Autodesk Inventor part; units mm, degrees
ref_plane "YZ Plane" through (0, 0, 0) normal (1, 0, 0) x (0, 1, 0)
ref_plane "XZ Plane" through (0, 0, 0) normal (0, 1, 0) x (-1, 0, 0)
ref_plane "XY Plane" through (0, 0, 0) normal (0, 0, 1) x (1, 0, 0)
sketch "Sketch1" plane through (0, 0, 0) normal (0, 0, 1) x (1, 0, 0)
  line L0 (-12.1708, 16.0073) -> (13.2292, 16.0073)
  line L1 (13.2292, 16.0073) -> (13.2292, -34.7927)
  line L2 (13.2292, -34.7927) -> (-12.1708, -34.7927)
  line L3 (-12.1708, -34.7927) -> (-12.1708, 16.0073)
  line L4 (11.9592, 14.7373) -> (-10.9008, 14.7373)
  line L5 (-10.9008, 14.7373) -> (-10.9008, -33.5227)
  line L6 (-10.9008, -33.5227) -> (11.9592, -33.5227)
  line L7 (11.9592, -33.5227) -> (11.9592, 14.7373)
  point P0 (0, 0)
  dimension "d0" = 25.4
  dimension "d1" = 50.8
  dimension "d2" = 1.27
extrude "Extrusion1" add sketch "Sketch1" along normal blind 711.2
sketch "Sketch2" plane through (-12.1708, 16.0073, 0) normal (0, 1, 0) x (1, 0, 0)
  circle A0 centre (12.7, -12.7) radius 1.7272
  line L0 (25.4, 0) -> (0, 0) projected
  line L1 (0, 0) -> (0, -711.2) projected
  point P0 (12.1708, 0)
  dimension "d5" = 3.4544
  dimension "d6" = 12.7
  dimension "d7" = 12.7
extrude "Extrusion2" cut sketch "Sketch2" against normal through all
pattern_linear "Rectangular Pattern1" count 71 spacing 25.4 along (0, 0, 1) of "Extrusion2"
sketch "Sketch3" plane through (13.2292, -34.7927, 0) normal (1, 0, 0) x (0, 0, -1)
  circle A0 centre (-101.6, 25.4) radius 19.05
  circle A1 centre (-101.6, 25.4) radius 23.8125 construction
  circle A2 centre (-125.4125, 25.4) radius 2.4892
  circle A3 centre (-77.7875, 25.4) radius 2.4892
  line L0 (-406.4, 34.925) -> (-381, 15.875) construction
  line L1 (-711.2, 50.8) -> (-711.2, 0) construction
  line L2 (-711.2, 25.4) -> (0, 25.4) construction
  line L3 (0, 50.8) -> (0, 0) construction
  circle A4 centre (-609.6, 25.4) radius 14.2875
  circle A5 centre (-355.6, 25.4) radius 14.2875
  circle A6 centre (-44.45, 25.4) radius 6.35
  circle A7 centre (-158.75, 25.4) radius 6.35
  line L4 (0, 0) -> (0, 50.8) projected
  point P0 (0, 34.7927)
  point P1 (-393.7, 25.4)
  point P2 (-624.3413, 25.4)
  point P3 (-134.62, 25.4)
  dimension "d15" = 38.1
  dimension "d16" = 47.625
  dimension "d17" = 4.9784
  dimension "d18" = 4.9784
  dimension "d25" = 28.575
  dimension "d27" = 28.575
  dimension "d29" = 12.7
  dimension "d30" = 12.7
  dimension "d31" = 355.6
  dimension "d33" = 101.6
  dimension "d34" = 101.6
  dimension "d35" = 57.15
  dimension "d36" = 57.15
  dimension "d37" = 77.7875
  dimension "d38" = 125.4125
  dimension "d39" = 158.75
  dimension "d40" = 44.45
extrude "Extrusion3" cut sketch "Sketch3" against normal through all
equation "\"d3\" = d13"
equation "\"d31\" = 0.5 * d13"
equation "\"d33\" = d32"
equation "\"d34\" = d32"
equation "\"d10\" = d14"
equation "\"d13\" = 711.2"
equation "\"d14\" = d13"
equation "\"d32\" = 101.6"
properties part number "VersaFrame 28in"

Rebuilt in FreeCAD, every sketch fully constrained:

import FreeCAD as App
import Part
import Sketcher

V = App.Vector
Q = App.Units.Quantity

doc = App.newDocument("Part")
body = doc.addObject("PartDesign::Body", "Body")

# Sketch on XY plane
sketch1 = body.newObject("Sketcher::SketchObject", "Sketch")
sketch1.AttachmentSupport = (doc.getObject("XY_Plane"), [""])
sketch1.MapMode = "FlatFace"
sketch1.addGeometry(Part.LineSegment(V(13.2292, 16.0073, 0), V(-12.1708, 16.0073, 0)), False)
sketch1.addGeometry(Part.LineSegment(V(-12.1708, 16.0073, 0), V(-12.1708, -34.7927, 0)), False)
sketch1.addGeometry(Part.LineSegment(V(-12.1708, -34.7927, 0), V(13.2292, -34.7927, 0)), False)
sketch1.addGeometry(Part.LineSegment(V(13.2292, -34.7927, 0), V(13.2292, 16.0073, 0)), False)
sketch1.addGeometry(Part.LineSegment(V(-10.9008, 14.7373, 0), V(11.9592, 14.7373, 0)), False)
sketch1.addGeometry(Part.LineSegment(V(11.9592, 14.7373, 0), V(11.9592, -33.5227, 0)), False)
sketch1.addGeometry(Part.LineSegment(V(11.9592, -33.5227, 0), V(-10.9008, -33.5227, 0)), False)
sketch1.addGeometry(Part.LineSegment(V(-10.9008, -33.5227, 0), V(-10.9008, 14.7373, 0)), False)
sketch1.addConstraint(Sketcher.Constraint("Coincident", 0, 2, 1, 1))
sketch1.addConstraint(Sketcher.Constraint("Coincident", 1, 2, 2, 1))
sketch1.addConstraint(Sketcher.Constraint("Coincident", 2, 2, 3, 1))
sketch1.addConstraint(Sketcher.Constraint("Coincident", 3, 2, 0, 1))
sketch1.addConstraint(Sketcher.Constraint("Coincident", 4, 2, 5, 1))
sketch1.addConstraint(Sketcher.Constraint("Coincident", 5, 2, 6, 1))
sketch1.addConstraint(Sketcher.Constraint("Coincident", 6, 2, 7, 1))
sketch1.addConstraint(Sketcher.Constraint("Coincident", 7, 2, 4, 1))
sketch1.addConstraint(Sketcher.Constraint("Horizontal", 0))
sketch1.addConstraint(Sketcher.Constraint("Vertical", 1))
sketch1.addConstraint(Sketcher.Constraint("Horizontal", 2))
sketch1.addConstraint(Sketcher.Constraint("Vertical", 3))
sketch1.addConstraint(Sketcher.Constraint("Horizontal", 4))
sketch1.addConstraint(Sketcher.Constraint("Vertical", 5))
sketch1.addConstraint(Sketcher.Constraint("Horizontal", 6))
sketch1.addConstraint(Sketcher.Constraint("Vertical", 7))
sketch1.addConstraint(Sketcher.Constraint("DistanceX", 0, 2, 0, 1, Q("1 in")))
sketch1.addConstraint(Sketcher.Constraint("DistanceY", 1, 2, 1, 1, Q("2 in")))
sketch1.addConstraint(Sketcher.Constraint("DistanceX", 4, 2, 3, 2, Q("0.05 in")))
sketch1.addConstraint(Sketcher.Constraint("DistanceY", 4, 2, 3, 2, Q("0.05 in")))
sketch1.addConstraint(Sketcher.Constraint("DistanceY", 2, 2, 5, 2, Q("0.05 in")))
sketch1.addConstraint(Sketcher.Constraint("DistanceX", 1, 2, 6, 2, Q("0.05 in")))
sketch1.addConstraint(Sketcher.Constraint("DistanceY", -1, 1, 0, 2, Q("0.6302 in")))
sketch1.addConstraint(Sketcher.Constraint("DistanceX", 0, 2, -1, 1, Q("12.1708 mm")))
pad1 = body.newObject("PartDesign::Pad", "Pad")
pad1.Profile = sketch1
pad1.Length = Q("28 in")

# Sketch on XZ plane
sketch2 = body.newObject("Sketcher::SketchObject", "Sketch001")
sketch2.AttachmentSupport = (doc.getObject("XZ_Plane"), [""])
sketch2.MapMode = "FlatFace"
sketch2.AttachmentOffset = App.Placement(V(0, 0, -0.6302087 * 25.4), App.Rotation())
sketch2.addGeometry(Part.Circle(V(0.5292, 12.7, 0), V(0, 0, 1), 1.7272), False)
sketch2.addConstraint(Sketcher.Constraint("Diameter", 0, Q("0.136 in")))
sketch2.addConstraint(Sketcher.Constraint("DistanceY", -1, 1, 0, 3, Q("0.5 in")))
sketch2.addConstraint(Sketcher.Constraint("DistanceX", -1, 1, 0, 3, Q("0.5292 mm")))
pocket1 = body.newObject("PartDesign::Pocket", "Pocket")
pocket1.Profile = sketch2
pocket1.Type = "ThroughAll"
pocket1.Reversed = True
doc.recompute()

linearpattern = body.newObject("PartDesign::LinearPattern", "LinearPattern")
linearpattern.Originals = [pocket1]
linearpattern.Direction = (doc.getObject("Z_Axis"), [""])
linearpattern.Mode = "offset"
linearpattern.Offset = Q("1 in")
linearpattern.Occurrences = 71
body.Tip = linearpattern

# Sketch on YZ plane
sketch3 = body.newObject("Sketcher::SketchObject", "Sketch002")
sketch3.AttachmentSupport = (doc.getObject("YZ_Plane"), [""])
sketch3.MapMode = "FlatFace"
sketch3.AttachmentOffset = App.Placement(V(0, 0, 13.2292), App.Rotation())
sketch3.addGeometry(Part.Circle(V(-9.3927, 101.6, 0), V(0, 0, 1), 19.05), False)
sketch3.addGeometry(Part.Circle(V(-9.3927, 125.4125, 0), V(0, 0, 1), 2.4892), False)
sketch3.addGeometry(Part.Circle(V(-9.3927, 77.7875, 0), V(0, 0, 1), 2.4892), False)
sketch3.addGeometry(Part.Circle(V(-9.3927, 609.6, 0), V(0, 0, 1), 14.2875), False)
sketch3.addGeometry(Part.Circle(V(-9.3927, 355.6, 0), V(0, 0, 1), 14.2875), False)
sketch3.addGeometry(Part.Circle(V(-9.3927, 44.45, 0), V(0, 0, 1), 6.35), False)
sketch3.addGeometry(Part.Circle(V(-9.3927, 158.75, 0), V(0, 0, 1), 6.35), False)
sketch3.addConstraint(Sketcher.Constraint("Equal", 1, 2))
sketch3.addConstraint(Sketcher.Constraint("Equal", 3, 4))
sketch3.addConstraint(Sketcher.Constraint("Equal", 5, 6))
sketch3.addConstraint(Sketcher.Constraint("Vertical", 0, 3, 1, 3))
sketch3.addConstraint(Sketcher.Constraint("Vertical", 1, 3, 2, 3))
sketch3.addConstraint(Sketcher.Constraint("Vertical", 2, 3, 3, 3))
sketch3.addConstraint(Sketcher.Constraint("Vertical", 3, 3, 4, 3))
sketch3.addConstraint(Sketcher.Constraint("Vertical", 4, 3, 5, 3))
sketch3.addConstraint(Sketcher.Constraint("Vertical", 5, 3, 6, 3))
sketch3.addConstraint(Sketcher.Constraint("Diameter", 0, Q("1.5 in")))
sketch3.addConstraint(Sketcher.Constraint("Diameter", 5, Q("0.5 in")))
sketch3.addConstraint(Sketcher.Constraint("Diameter", 1, Q("0.196 in")))
sketch3.addConstraint(Sketcher.Constraint("Diameter", 3, Q("1.125 in")))
sketch3.addConstraint(Sketcher.Constraint("DistanceY", -1, 1, 0, 3, Q("4 in")))
sketch3.addConstraint(Sketcher.Constraint("DistanceY", -1, 1, 4, 3, Q("14 in")))
sketch3.addConstraint(Sketcher.Constraint("DistanceY", -1, 1, 5, 3, Q("1.75 in")))
sketch3.addConstraint(Sketcher.Constraint("DistanceY", -1, 1, 6, 3, Q("6.25 in")))
sketch3.addConstraint(Sketcher.Constraint("DistanceY", -1, 1, 1, 3, Q("4.9375 in")))
sketch3.addConstraint(Sketcher.Constraint("DistanceY", -1, 1, 2, 3, Q("3.0625 in")))
sketch3.addConstraint(Sketcher.Constraint("DistanceY", -1, 1, 3, 3, Q("24 in")))
sketch3.addConstraint(Sketcher.Constraint("DistanceX", 0, 3, -1, 1, Q("0.3698 in")))
pocket2 = body.newObject("PartDesign::Pocket", "Pocket001")
pocket2.Profile = sketch3
pocket2.Type = "ThroughAll"

doc.recompute()
